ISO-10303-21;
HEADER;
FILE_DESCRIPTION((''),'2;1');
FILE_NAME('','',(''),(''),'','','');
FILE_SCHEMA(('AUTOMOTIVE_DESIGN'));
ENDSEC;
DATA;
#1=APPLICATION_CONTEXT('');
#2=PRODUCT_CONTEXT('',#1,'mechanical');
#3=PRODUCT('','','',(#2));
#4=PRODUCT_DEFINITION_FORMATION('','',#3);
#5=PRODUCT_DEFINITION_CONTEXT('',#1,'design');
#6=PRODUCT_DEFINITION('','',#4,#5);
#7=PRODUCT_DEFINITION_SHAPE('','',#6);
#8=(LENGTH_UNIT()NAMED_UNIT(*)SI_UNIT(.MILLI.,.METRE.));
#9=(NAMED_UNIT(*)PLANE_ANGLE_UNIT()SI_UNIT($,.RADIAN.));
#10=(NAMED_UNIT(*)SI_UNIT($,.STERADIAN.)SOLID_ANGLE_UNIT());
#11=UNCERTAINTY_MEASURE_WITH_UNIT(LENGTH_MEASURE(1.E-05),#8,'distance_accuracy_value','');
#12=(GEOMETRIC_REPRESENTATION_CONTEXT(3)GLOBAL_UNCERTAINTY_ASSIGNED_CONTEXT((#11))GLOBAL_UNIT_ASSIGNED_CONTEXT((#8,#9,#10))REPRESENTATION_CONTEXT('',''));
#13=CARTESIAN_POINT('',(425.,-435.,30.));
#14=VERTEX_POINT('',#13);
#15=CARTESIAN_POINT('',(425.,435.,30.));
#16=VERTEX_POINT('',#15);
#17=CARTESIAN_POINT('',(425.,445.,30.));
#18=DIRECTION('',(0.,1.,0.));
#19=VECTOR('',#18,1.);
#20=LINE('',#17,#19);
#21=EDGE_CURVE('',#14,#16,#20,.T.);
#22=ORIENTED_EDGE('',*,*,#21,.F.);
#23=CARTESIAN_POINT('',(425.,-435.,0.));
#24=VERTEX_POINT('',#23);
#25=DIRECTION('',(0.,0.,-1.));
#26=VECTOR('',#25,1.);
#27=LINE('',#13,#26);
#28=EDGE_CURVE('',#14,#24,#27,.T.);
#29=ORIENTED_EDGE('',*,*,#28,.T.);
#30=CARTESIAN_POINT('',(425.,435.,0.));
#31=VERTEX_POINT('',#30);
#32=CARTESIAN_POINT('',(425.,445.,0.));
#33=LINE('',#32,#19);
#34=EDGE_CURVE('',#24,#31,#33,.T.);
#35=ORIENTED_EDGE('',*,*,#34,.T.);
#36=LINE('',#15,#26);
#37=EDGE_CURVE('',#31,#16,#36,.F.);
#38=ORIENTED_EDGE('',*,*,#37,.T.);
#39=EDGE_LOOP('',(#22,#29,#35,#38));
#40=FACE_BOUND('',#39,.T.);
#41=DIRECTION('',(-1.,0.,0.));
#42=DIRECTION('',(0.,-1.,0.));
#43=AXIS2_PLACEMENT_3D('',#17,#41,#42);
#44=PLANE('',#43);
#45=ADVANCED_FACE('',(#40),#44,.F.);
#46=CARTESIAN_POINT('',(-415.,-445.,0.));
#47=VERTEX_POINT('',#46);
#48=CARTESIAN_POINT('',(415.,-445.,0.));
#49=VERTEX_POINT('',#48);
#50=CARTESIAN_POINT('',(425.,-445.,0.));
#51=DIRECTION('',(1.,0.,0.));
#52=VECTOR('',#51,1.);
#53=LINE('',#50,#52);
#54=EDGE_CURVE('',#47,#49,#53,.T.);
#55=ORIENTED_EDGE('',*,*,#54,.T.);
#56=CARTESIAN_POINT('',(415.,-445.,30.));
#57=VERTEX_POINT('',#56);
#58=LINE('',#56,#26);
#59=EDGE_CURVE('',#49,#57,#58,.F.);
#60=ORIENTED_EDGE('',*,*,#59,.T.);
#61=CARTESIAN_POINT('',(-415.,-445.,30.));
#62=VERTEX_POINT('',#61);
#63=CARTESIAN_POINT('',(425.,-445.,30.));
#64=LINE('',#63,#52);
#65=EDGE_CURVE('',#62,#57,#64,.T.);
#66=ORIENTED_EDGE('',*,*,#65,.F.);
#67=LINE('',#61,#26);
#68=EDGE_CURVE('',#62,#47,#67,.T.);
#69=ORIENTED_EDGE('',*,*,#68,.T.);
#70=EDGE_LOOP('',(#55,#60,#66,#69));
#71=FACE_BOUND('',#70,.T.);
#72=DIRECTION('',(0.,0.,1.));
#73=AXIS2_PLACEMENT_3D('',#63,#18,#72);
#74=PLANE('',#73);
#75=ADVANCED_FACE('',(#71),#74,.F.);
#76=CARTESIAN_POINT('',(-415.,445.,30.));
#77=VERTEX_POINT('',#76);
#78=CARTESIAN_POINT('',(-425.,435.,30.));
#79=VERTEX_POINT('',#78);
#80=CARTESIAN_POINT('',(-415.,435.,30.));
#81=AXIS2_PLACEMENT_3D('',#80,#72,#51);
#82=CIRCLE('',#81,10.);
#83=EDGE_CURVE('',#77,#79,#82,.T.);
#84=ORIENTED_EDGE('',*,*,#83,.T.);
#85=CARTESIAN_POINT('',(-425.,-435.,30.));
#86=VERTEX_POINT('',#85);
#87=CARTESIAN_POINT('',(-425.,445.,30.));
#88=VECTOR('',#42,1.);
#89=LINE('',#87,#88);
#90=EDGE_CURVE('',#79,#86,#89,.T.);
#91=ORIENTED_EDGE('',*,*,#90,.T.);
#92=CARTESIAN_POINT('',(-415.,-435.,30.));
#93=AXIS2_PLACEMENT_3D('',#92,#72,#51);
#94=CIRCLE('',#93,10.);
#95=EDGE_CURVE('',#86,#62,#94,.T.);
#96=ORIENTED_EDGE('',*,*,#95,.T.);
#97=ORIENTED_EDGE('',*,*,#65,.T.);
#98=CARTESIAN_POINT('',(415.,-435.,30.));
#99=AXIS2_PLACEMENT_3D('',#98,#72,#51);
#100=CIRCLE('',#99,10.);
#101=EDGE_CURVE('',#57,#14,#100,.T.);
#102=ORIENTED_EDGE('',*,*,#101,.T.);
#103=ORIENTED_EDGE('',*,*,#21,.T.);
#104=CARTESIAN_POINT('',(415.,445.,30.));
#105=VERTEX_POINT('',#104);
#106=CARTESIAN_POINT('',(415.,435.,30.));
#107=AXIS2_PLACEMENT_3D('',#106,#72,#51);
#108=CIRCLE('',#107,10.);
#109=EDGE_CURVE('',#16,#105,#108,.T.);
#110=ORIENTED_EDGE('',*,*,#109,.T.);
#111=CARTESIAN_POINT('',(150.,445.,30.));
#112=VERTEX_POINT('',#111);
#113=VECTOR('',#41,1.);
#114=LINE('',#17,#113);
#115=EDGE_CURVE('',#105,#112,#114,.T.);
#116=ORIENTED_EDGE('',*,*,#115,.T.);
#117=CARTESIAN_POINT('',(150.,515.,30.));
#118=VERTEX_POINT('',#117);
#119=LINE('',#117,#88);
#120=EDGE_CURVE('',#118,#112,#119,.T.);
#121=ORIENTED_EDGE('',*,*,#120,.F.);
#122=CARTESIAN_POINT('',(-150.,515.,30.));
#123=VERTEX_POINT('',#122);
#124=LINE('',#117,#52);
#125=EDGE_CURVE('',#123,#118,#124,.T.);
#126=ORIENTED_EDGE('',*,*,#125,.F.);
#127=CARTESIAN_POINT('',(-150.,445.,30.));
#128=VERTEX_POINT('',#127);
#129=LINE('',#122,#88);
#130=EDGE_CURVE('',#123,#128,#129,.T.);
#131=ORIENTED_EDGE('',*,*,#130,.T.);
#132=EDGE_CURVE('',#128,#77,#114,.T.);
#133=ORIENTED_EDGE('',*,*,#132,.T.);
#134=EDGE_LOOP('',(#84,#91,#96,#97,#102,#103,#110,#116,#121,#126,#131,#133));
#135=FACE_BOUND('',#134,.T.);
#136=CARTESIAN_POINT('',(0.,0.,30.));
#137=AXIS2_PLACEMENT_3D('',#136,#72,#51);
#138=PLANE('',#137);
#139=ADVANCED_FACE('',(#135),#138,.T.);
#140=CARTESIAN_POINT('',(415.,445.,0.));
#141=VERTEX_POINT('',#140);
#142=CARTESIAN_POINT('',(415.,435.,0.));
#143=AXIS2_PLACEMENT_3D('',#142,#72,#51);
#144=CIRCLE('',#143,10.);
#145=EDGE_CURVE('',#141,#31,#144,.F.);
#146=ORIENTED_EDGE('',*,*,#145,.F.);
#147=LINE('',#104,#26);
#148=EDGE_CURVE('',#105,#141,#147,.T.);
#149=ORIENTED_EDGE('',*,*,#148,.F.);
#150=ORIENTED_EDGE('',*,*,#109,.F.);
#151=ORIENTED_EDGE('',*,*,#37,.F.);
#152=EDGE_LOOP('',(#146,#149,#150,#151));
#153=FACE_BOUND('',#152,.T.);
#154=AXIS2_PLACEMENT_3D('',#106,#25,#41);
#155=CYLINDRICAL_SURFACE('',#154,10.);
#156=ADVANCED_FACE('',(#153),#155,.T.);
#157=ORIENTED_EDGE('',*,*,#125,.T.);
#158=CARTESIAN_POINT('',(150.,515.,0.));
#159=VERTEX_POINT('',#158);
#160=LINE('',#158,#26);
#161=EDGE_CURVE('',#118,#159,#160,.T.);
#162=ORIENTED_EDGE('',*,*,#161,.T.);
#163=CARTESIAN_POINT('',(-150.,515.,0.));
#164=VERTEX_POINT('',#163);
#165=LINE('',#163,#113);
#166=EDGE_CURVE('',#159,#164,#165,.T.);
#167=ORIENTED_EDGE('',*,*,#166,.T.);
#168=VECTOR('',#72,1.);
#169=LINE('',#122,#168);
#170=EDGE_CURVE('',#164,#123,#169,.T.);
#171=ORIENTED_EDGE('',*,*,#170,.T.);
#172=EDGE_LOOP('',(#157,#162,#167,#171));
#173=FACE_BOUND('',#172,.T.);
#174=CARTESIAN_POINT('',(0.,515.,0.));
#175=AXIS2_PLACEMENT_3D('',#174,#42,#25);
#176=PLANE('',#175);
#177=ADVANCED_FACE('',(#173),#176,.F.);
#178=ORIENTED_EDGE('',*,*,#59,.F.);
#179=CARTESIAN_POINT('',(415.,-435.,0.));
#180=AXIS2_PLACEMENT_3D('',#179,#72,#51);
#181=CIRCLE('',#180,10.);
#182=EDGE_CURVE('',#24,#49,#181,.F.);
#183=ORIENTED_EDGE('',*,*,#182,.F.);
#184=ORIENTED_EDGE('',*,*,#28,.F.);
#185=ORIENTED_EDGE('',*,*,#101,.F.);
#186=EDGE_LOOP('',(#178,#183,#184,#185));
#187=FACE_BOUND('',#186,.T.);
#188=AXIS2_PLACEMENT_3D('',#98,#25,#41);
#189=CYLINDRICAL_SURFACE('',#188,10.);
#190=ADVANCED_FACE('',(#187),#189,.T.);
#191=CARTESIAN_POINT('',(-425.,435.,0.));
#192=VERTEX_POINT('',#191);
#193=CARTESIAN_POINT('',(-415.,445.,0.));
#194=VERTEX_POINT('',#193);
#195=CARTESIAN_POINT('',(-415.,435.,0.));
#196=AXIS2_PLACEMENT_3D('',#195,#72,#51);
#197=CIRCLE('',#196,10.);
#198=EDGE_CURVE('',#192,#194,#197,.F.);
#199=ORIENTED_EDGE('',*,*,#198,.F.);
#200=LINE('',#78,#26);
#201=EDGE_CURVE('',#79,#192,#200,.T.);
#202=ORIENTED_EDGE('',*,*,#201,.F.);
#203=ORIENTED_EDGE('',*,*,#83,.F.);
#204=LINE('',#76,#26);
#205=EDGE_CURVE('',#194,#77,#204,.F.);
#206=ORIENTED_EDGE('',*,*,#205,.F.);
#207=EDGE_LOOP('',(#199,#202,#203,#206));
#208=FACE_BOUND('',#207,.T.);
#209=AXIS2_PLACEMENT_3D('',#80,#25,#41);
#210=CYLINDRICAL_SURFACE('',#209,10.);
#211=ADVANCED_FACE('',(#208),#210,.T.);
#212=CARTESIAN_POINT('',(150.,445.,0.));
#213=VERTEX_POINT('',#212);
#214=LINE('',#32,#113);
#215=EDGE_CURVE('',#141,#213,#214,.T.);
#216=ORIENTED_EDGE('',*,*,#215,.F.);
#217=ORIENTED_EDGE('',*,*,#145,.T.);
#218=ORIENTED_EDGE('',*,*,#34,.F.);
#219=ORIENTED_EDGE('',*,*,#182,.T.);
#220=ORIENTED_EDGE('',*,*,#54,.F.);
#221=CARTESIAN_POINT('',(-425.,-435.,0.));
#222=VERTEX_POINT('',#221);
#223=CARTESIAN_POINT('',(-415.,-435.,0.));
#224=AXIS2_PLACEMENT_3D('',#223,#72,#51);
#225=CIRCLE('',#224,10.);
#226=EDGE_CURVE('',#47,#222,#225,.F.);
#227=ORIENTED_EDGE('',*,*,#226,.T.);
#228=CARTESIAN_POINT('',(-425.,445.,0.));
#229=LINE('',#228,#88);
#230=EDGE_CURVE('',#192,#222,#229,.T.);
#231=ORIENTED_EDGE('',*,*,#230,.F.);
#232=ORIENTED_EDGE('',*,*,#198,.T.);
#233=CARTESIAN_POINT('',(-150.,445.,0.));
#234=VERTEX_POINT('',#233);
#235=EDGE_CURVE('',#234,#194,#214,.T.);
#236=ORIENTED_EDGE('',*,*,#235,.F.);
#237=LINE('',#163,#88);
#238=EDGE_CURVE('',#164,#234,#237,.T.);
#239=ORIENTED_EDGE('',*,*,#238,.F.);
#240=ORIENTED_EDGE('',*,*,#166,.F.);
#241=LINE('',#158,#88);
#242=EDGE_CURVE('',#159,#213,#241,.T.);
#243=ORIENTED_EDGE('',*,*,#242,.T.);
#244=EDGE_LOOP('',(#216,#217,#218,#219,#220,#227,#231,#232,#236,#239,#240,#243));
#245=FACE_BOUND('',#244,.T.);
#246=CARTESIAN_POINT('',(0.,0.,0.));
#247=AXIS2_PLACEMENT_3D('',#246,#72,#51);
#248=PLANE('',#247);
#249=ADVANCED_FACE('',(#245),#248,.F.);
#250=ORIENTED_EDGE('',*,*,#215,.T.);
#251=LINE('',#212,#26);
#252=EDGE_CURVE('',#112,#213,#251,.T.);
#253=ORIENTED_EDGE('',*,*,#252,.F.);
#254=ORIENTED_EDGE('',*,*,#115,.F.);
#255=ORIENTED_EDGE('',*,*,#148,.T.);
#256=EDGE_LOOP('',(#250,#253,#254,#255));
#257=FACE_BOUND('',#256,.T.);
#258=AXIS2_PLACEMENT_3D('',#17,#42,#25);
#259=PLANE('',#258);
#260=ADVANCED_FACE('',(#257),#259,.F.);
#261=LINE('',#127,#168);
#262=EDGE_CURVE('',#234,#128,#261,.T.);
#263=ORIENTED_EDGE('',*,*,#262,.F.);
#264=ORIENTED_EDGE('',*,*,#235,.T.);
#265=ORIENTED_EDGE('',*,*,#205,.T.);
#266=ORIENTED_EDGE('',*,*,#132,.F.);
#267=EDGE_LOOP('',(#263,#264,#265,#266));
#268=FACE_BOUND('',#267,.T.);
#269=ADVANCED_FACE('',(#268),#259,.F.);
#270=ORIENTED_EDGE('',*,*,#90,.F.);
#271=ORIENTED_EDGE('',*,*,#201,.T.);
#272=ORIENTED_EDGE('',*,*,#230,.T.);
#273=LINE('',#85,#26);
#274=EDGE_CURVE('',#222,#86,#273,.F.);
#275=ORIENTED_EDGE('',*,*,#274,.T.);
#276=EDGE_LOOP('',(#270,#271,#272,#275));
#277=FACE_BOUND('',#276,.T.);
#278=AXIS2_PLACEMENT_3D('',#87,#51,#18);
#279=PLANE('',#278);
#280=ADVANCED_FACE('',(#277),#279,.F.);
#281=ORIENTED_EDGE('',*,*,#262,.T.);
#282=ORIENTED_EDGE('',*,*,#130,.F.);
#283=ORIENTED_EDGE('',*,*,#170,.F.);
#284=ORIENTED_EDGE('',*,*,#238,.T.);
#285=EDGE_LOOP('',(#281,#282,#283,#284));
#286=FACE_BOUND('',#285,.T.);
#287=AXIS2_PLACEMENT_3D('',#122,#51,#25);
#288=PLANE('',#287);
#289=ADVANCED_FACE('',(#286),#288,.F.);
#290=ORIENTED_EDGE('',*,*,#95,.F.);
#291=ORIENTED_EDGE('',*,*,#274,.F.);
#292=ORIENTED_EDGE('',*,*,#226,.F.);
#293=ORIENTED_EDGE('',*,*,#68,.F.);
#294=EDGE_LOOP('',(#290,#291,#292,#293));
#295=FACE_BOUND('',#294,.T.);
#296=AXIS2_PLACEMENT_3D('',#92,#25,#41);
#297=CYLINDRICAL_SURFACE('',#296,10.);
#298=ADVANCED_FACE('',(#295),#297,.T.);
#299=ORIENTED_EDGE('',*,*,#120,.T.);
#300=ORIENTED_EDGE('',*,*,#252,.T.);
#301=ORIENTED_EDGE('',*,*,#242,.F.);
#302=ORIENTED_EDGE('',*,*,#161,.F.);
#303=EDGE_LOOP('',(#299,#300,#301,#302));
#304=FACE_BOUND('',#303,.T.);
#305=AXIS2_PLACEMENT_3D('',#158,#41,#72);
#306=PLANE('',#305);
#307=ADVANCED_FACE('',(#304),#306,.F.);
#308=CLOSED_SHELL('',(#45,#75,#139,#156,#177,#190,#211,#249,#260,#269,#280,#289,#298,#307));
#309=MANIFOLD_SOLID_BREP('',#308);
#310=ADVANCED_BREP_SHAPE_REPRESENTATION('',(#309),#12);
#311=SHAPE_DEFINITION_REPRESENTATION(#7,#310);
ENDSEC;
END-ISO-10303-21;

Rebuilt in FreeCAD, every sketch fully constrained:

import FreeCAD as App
import Part
import Sketcher

V = App.Vector
Q = App.Units.Quantity


def edges_at(feature, points):
    """Names of the edges that pass closest to the given points."""
    edges = feature.Shape.Edges
    near = lambda p: min(range(len(edges)), key=lambda i: edges[i].distToShape(Part.Vertex(*p))[0])
    return sorted({f"Edge{near(p) + 1}" for p in points})

doc = App.newDocument("Part")
params = doc.addObject("Spreadsheet::Sheet", "Params")
for row, (alias, value) in enumerate([
    ("sketch1_width", "850 mm"),
    ("sketch1_height", "890 mm"),
    ("pad1_length", "30 mm"),
    ("fillet_radius", "10 mm"),
    ("sketch2_width", "300 mm"),
    ("sketch2_height", "30 mm"),
    ("pad2_length", "70 mm"),
], start=1):
    params.set(f"A{row}", alias)
    params.set(f"B{row}", "=" + value)
    params.setAlias(f"B{row}", alias)

body = doc.addObject("PartDesign::Body", "Body")

# Sketch on XY plane
sketch1 = doc.addObject("Sketcher::SketchObject", "Sketch")
body.addObject(sketch1)
sketch1.AttachmentSupport = (doc.XY_Plane, [""])
sketch1.MapMode = "FlatFace"
sketch1.addGeometry([
    Part.LineSegment(V(-425, -445, 0), V(425, -445, 0)),
    Part.LineSegment(V(425, -445, 0), V(425, 445, 0)),
    Part.LineSegment(V(425, 445, 0), V(-425, 445, 0)),
    Part.LineSegment(V(-425, 445, 0), V(-425, -445, 0)),
], False)
sketch1.addConstraint([
    Sketcher.Constraint("Coincident", 0, 2, 1, 1),
    Sketcher.Constraint("Coincident", 1, 2, 2, 1),
    Sketcher.Constraint("Coincident", 2, 2, 3, 1),
    Sketcher.Constraint("Coincident", 3, 2, 0, 1),
    Sketcher.Constraint("Horizontal", 0),
    Sketcher.Constraint("Vertical", 1),
    Sketcher.Constraint("Horizontal", 2),
    Sketcher.Constraint("Vertical", 3),
    Sketcher.Constraint("Symmetric", 0, 2, 2, 2, -1, 1),
    Sketcher.Constraint("DistanceX", 0, 1, 0, 2, Q("850 mm")),
    Sketcher.Constraint("DistanceY", 1, 1, 1, 2, Q("890 mm")),
])
sketch1.setExpression("Constraints[9]", "Params.sketch1_width")
sketch1.setExpression("Constraints[10]", "Params.sketch1_height")
pad1 = doc.addObject("PartDesign::Pad", "Pad")
body.addObject(pad1)
pad1.Profile = sketch1
pad1.setExpression("Length", "Params.pad1_length")
doc.recompute()

fillet = doc.addObject("PartDesign::Fillet", "Fillet")
body.addObject(fillet)
fillet.Base = (pad1, edges_at(pad1, [
    (-425, -445, 15),
    (-425, 445, 15),
    (425, 445, 15),
    (425, -445, 15),
]))
fillet.setExpression("Radius", "Params.fillet_radius")

# Sketch on XZ plane
sketch2 = doc.addObject("Sketcher::SketchObject", "Sketch001")
body.addObject(sketch2)
sketch2.AttachmentSupport = (doc.XZ_Plane, [""])
sketch2.MapMode = "FlatFace"
sketch2.AttachmentOffset = App.Placement(V(0, 0, -445), App.Rotation())
sketch2.addGeometry([
    Part.LineSegment(V(150, 0, 0), V(-150, 0, 0)),
    Part.LineSegment(V(-150, 0, 0), V(-150, 30, 0)),
    Part.LineSegment(V(-150, 30, 0), V(150, 30, 0)),
    Part.LineSegment(V(150, 30, 0), V(150, 0, 0)),
], False)
sketch2.addConstraint([
    Sketcher.Constraint("Coincident", 0, 2, 1, 1),
    Sketcher.Constraint("Coincident", 1, 2, 2, 1),
    Sketcher.Constraint("Coincident", 2, 2, 3, 1),
    Sketcher.Constraint("Coincident", 3, 2, 0, 1),
    Sketcher.Constraint("Horizontal", 0),
    Sketcher.Constraint("Vertical", 1),
    Sketcher.Constraint("Horizontal", 2),
    Sketcher.Constraint("Vertical", 3),
    Sketcher.Constraint("Symmetric", 0, 2, 3, 2, -1, 1),
    Sketcher.Constraint("DistanceX", 0, 2, 0, 1, Q("300 mm")),
    Sketcher.Constraint("DistanceY", 1, 1, 1, 2, Q("30 mm")),
])
sketch2.setExpression("Constraints[9]", "Params.sketch2_width")
sketch2.setExpression("Constraints[10]", "Params.sketch2_height")
pad2 = doc.addObject("PartDesign::Pad", "Pad001")
body.addObject(pad2)
pad2.Profile = sketch2
pad2.setExpression("Length", "Params.pad2_length")
pad2.Reversed = True

doc.recompute()
